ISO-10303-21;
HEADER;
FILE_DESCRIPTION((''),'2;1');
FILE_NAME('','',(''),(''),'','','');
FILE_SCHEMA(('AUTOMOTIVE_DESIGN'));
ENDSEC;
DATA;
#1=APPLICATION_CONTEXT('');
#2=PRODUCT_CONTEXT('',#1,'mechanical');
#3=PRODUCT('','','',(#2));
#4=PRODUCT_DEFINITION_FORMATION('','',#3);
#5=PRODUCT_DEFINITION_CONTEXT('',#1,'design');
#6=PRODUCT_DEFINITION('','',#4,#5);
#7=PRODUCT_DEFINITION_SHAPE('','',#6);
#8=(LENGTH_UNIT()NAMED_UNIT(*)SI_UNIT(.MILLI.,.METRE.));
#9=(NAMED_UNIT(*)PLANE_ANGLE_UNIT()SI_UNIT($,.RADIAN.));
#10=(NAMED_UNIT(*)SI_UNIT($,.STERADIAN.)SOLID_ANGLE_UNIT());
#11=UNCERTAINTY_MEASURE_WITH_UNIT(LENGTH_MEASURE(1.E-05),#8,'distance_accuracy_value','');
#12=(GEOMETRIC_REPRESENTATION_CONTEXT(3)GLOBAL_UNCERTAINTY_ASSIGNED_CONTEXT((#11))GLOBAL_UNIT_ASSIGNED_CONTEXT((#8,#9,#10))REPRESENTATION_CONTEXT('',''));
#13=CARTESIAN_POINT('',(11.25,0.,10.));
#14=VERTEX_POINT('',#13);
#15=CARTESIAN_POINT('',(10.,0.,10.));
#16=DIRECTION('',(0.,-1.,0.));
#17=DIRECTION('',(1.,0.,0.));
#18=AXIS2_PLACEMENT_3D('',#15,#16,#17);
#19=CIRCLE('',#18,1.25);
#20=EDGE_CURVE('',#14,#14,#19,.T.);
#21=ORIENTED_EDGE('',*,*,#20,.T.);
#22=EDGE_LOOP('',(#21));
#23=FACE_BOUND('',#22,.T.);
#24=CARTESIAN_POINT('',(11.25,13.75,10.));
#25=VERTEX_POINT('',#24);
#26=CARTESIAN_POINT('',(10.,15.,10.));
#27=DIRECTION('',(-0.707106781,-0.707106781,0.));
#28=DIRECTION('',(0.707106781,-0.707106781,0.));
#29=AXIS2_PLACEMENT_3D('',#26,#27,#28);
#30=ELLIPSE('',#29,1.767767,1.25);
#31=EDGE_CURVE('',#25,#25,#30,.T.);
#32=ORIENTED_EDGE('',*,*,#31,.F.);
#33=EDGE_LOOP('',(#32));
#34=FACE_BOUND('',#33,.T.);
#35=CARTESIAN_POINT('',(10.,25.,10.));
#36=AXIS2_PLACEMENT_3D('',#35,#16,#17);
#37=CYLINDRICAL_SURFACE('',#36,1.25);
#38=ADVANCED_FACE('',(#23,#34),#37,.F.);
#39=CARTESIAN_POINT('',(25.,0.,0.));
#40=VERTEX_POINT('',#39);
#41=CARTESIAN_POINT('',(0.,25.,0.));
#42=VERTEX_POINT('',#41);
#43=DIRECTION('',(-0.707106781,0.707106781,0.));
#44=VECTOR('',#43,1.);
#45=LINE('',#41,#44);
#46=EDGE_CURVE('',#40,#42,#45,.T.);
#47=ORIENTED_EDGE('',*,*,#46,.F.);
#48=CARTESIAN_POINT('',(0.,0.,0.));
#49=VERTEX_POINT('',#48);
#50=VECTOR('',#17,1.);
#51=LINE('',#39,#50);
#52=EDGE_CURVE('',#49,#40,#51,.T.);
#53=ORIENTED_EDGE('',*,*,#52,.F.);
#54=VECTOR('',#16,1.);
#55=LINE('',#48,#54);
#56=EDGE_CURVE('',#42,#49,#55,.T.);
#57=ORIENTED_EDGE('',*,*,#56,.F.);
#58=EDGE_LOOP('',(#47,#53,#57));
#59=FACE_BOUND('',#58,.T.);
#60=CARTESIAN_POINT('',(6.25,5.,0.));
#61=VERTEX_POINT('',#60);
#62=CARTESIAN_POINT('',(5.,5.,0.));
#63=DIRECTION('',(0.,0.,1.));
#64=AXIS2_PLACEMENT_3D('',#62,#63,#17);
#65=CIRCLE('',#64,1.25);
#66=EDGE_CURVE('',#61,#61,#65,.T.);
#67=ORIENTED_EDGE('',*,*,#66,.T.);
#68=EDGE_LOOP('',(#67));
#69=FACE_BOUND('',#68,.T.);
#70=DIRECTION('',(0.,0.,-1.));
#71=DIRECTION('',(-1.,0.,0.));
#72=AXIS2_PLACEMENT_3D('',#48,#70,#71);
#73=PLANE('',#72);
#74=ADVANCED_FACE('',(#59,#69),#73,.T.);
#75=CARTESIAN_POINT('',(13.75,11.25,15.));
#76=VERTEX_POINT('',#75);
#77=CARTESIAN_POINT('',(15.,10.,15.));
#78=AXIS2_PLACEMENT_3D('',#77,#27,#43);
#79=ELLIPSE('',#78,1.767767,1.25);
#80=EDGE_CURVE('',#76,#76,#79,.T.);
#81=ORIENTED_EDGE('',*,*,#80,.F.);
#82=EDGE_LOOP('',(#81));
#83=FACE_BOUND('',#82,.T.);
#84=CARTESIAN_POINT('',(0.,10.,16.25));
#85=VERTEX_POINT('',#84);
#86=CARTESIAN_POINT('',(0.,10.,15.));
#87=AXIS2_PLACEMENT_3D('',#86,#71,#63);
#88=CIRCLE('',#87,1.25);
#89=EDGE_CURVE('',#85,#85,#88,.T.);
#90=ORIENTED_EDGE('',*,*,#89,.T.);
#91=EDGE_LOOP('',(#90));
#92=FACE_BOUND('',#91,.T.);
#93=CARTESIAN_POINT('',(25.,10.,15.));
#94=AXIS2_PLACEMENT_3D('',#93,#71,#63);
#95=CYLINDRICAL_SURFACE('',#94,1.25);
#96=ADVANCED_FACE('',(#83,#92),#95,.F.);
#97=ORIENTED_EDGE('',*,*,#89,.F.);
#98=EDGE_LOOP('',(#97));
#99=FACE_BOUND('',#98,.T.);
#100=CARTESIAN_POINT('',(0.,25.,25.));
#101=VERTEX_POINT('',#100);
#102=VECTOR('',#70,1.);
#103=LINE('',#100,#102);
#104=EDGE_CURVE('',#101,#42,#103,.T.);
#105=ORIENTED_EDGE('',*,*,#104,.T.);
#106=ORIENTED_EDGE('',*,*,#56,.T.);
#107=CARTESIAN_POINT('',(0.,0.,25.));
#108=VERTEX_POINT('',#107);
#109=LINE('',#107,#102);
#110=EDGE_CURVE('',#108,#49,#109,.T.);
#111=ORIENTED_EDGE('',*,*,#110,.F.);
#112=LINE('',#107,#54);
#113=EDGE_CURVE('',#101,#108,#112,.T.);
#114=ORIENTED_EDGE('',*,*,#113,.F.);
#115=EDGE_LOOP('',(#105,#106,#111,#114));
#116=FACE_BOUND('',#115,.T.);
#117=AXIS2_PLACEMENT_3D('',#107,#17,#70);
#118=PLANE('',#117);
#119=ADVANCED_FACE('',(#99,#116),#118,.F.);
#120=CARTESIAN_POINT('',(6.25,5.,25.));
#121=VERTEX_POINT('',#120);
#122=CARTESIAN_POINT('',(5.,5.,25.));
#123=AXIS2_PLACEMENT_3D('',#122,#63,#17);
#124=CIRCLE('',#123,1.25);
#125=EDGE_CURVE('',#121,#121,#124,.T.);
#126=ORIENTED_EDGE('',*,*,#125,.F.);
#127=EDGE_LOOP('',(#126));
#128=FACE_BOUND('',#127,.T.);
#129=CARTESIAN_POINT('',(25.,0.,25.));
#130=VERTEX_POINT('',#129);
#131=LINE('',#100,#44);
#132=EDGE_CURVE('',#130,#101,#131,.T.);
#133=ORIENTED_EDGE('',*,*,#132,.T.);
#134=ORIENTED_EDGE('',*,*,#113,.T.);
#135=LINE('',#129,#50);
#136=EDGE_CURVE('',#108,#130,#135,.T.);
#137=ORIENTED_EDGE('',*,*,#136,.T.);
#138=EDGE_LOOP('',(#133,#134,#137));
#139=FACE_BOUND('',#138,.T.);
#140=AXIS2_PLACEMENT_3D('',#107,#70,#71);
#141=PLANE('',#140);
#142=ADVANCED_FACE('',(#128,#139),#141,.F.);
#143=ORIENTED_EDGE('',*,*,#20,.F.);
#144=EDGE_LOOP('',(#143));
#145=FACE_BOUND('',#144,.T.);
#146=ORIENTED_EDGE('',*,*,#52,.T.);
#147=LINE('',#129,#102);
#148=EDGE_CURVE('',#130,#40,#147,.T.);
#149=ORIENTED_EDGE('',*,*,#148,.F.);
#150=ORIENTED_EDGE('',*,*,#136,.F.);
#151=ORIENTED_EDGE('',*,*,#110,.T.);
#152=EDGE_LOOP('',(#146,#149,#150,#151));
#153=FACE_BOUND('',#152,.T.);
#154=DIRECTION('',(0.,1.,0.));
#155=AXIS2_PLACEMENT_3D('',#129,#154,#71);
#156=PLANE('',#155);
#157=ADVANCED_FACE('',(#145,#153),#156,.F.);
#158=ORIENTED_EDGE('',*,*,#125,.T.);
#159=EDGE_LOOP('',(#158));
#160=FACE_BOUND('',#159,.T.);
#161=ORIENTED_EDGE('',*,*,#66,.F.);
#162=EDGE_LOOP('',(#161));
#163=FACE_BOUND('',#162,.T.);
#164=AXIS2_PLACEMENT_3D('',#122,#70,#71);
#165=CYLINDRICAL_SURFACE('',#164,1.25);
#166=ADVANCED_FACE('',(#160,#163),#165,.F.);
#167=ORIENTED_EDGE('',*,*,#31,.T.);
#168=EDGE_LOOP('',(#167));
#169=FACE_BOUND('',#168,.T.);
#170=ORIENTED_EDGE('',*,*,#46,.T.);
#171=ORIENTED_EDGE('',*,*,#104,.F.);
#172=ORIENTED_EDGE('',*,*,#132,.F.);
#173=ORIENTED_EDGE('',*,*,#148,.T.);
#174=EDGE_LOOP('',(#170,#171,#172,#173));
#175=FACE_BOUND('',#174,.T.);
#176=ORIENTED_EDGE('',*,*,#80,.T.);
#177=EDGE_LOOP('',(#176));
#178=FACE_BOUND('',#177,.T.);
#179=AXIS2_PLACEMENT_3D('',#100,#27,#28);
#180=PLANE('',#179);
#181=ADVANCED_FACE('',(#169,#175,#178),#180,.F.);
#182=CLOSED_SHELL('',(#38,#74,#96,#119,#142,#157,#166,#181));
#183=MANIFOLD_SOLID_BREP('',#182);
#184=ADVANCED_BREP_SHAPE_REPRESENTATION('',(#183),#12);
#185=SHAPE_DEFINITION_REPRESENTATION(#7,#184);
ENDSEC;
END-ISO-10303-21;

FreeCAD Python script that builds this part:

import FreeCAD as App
import Part
import Sketcher
from FreeCAD import Vector
Q = App.Units.Quantity

doc = App.newDocument("Part")
body = doc.addObject("PartDesign::Body", "Body")

# Sketch on XY plane
sketch1 = doc.addObject("Sketcher::SketchObject", "Sketch")
body.addObject(sketch1)
sketch1.AttachmentSupport = (doc.XY_Plane, [""])
sketch1.MapMode = "FlatFace"
sketch1.addGeometry([
    Part.LineSegment(Vector(0, 25, 0), Vector(0, 0, 0)),
    Part.LineSegment(Vector(0, 0, 0), Vector(25, 0, 0)),
    Part.LineSegment(Vector(25, 0, 0), Vector(0, 25, 0)),
    Part.Circle(Vector(5, 5, 0), Vector(0, 0, 1), 1.2),
], False)
sketch1.addConstraint([
    Sketcher.Constraint("Coincident", 0, 2, 1, 1),
    Sketcher.Constraint("Coincident", 1, 2, 2, 1),
    Sketcher.Constraint("Coincident", 2, 2, 0, 1),
    Sketcher.Constraint("Vertical", 0),
    Sketcher.Constraint("Horizontal", 1),
    Sketcher.Constraint("Coincident", 0, 2, -1, 1),
    Sketcher.Constraint("Equal", 1, 0),
    Sketcher.Constraint("Diameter", 3, Q("2.5 mm")),
    Sketcher.Constraint("DistanceX", 1, 1, 1, 2, Q("25 mm")),
    Sketcher.Constraint("DistanceX", -1, 1, 3, 3, Q("5 mm")),
    Sketcher.Constraint("DistanceY", -1, 1, 3, 3, Q("5 mm")),
])
pad1 = doc.addObject("PartDesign::Pad", "Pad")
body.addObject(pad1)
pad1.Profile = sketch1
pad1.Length = 25

# Sketch on YZ plane
sketch2 = doc.addObject("Sketcher::SketchObject", "Sketch001")
body.addObject(sketch2)
sketch2.AttachmentSupport = (doc.YZ_Plane, [""])
sketch2.MapMode = "FlatFace"
sketch2.addGeometry(Part.Circle(Vector(10, 15, 0), Vector(0, 0, 1), 1.2), False)
sketch2.addConstraint([
    Sketcher.Constraint("Diameter", 0, Q("2.5 mm")),
    Sketcher.Constraint("DistanceX", -1, 1, 0, 3, Q("10 mm")),
    Sketcher.Constraint("DistanceY", -1, 1, 0, 3, Q("15 mm")),
])
pocket1 = doc.addObject("PartDesign::Pocket", "Pocket")
body.addObject(pocket1)
pocket1.Profile = sketch2
pocket1.Length = 25
pocket1.Reversed = True

# Sketch on XZ plane
sketch3 = doc.addObject("Sketcher::SketchObject", "Sketch002")
body.addObject(sketch3)
sketch3.AttachmentSupport = (doc.XZ_Plane, [""])
sketch3.MapMode = "FlatFace"
sketch3.addGeometry(Part.Circle(Vector(10, 10, 0), Vector(0, 0, 1), 1.2), False)
sketch3.addConstraint([
    Sketcher.Constraint("Diameter", 0, Q("2.5 mm")),
    Sketcher.Constraint("DistanceX", -1, 1, 0, 3, Q("10 mm")),
    Sketcher.Constraint("DistanceY", -1, 1, 0, 3, Q("10 mm")),
])
pocket2 = doc.addObject("PartDesign::Pocket", "Pocket001")
body.addObject(pocket2)
pocket2.Profile = sketch3
pocket2.Length = 25

doc.recompute()
